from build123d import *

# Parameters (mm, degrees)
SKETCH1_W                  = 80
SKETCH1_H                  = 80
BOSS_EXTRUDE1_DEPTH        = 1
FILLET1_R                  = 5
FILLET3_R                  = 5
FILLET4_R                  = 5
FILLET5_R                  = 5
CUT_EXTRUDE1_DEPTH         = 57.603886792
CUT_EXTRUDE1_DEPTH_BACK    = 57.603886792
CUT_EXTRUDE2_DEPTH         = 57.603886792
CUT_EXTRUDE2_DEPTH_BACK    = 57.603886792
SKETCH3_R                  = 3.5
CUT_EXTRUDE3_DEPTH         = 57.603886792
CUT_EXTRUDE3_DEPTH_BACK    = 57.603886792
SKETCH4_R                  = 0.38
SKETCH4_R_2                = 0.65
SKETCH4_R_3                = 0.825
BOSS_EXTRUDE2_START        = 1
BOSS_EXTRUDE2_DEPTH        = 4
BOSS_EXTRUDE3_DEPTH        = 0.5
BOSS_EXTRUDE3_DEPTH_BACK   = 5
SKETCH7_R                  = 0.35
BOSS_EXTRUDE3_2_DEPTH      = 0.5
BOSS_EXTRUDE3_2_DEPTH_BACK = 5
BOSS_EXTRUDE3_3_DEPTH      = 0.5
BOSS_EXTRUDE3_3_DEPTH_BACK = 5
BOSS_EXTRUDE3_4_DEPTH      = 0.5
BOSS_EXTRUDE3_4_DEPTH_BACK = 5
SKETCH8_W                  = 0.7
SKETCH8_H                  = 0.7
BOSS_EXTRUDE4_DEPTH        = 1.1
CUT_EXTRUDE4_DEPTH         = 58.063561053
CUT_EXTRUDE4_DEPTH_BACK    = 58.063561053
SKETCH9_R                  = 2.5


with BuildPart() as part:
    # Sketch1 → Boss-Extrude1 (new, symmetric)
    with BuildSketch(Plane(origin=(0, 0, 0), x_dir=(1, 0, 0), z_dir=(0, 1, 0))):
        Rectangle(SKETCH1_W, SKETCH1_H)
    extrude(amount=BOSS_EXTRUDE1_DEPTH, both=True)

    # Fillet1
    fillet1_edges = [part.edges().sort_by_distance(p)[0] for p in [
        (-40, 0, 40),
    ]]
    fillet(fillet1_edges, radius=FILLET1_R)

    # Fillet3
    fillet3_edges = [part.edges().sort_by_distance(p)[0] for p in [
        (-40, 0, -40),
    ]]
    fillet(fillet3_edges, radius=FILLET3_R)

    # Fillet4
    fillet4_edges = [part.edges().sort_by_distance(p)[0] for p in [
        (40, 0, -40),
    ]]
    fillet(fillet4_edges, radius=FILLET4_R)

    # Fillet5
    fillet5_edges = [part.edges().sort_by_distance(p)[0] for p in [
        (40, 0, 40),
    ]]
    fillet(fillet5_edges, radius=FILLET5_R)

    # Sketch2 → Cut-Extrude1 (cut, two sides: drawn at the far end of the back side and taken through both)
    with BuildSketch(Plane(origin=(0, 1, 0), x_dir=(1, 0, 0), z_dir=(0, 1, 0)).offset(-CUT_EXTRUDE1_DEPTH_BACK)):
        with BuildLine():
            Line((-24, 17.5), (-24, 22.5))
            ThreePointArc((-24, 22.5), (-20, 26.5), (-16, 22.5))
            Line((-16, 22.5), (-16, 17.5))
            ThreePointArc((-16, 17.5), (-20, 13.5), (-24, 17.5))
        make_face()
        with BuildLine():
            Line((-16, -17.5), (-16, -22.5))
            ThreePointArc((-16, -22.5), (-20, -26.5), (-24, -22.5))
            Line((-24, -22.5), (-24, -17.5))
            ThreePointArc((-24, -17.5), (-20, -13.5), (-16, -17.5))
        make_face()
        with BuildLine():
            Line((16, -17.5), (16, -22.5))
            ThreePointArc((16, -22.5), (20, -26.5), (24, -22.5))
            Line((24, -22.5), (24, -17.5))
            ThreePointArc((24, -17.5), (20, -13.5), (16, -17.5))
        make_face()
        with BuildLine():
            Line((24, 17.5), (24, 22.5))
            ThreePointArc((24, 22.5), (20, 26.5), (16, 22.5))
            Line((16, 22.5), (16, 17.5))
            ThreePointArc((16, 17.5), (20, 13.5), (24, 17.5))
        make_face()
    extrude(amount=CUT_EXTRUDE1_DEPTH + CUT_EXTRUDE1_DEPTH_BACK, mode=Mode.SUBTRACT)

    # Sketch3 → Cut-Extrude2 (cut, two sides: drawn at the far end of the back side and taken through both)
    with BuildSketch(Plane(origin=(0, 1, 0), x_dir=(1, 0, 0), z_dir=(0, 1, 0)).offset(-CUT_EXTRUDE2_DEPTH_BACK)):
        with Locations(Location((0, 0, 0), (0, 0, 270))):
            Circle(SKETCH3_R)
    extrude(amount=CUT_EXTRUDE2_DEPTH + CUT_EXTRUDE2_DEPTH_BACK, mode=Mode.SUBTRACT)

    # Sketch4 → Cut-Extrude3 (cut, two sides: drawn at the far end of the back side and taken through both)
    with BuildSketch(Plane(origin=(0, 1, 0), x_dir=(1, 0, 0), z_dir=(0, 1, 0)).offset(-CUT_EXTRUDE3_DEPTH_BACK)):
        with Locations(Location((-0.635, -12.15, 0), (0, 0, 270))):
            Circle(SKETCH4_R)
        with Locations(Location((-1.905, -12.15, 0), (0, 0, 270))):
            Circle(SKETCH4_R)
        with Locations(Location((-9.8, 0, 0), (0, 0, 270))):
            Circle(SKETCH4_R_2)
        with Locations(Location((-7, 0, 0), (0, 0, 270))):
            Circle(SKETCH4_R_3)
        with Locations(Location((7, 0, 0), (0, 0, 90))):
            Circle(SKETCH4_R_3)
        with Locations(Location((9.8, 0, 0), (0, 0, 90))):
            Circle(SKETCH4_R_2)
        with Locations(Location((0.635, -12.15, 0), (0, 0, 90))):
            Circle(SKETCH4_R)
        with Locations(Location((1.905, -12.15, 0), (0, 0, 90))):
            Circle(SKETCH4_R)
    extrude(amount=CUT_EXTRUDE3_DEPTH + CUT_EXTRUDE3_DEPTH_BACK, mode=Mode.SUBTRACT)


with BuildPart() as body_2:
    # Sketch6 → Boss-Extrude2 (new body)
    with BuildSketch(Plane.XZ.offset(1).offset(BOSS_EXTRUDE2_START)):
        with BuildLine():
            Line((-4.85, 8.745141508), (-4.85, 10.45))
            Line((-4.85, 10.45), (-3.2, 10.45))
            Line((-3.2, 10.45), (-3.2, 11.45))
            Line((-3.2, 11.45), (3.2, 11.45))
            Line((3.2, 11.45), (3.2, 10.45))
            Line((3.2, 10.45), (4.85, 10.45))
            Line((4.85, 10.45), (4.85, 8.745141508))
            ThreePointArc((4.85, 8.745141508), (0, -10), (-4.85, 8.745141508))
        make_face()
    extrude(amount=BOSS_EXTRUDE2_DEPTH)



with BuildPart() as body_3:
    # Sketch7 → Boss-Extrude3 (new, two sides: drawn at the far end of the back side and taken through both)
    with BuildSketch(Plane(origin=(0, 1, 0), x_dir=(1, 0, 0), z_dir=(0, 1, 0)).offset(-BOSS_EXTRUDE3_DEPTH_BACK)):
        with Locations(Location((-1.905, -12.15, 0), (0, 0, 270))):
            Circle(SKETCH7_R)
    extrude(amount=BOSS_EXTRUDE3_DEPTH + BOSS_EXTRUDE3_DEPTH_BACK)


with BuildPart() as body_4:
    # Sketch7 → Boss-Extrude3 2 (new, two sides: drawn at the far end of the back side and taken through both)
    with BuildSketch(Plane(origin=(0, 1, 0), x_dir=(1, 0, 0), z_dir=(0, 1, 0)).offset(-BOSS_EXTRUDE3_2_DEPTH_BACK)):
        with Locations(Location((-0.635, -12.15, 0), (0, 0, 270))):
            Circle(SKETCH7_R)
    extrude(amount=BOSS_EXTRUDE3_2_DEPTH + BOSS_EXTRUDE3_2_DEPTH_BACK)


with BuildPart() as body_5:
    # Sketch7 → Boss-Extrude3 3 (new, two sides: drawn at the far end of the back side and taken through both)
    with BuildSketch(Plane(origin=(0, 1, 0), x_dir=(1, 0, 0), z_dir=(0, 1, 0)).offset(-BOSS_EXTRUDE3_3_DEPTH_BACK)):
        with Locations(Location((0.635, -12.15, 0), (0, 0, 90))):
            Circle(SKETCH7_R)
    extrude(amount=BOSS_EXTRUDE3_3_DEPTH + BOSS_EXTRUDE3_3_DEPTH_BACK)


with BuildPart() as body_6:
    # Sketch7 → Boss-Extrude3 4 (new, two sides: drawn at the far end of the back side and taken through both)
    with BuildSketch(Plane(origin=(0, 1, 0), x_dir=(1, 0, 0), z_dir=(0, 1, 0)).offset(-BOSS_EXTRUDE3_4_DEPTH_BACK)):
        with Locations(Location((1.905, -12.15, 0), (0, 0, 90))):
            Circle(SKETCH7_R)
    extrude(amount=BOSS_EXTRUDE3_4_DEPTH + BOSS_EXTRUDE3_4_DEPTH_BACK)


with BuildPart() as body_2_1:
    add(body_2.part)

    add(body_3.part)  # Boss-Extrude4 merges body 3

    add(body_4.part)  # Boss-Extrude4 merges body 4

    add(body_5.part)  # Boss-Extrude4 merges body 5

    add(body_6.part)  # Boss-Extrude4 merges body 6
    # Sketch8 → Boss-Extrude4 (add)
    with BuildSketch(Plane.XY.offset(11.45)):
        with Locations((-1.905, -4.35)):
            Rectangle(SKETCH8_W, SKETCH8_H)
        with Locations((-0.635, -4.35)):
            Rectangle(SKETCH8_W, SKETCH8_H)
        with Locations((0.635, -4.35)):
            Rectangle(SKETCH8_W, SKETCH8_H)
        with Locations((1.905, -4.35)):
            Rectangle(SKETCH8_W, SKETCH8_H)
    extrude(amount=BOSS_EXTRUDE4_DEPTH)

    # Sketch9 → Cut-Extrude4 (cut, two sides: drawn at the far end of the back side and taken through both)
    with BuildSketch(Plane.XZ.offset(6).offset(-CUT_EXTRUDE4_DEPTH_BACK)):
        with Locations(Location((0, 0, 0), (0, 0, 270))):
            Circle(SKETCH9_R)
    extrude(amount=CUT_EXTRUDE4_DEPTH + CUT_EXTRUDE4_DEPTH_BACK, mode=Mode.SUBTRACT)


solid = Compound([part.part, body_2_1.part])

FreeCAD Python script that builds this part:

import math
import FreeCAD as App
import Part
import Sketcher
from FreeCAD import Vector


def edges_at(feature, points):
    """Names of the edges that pass closest to the given points."""
    edges = feature.Shape.Edges
    near = lambda p: min(range(len(edges)), key=lambda i: edges[i].distToShape(Part.Vertex(*p))[0])
    return sorted({f"Edge{near(p) + 1}" for p in points})


def add_polygon(sketch, points):
    """Adds a closed chain of lines whose ends are joined by coincident constraints."""
    first, n = sketch.GeometryCount, len(points)
    for a, b in zip(points, points[1:] + points[:1]):
        sketch.addGeometry(Part.LineSegment(App.Vector(*a, 0), App.Vector(*b, 0)), False)
    for i in range(n):
        sketch.addConstraint(Sketcher.Constraint("Coincident", first + i, 2, first + (i + 1) % n, 1))

doc = App.newDocument("Part")
body = doc.addObject("PartDesign::Body", "Body")

# Sketch on XZ plane
sketch1 = doc.addObject("Sketcher::SketchObject", "Sketch")
body.addObject(sketch1)
sketch1.AttachmentSupport = (doc.XZ_Plane, [""])
sketch1.MapMode = "FlatFace"
add_polygon(sketch1, [(-40, -40), (-40, 40), (40, 40), (40, -40)])  # lines 0-3
sketch1.addConstraint([
    Sketcher.Constraint("Vertical", 0),
    Sketcher.Constraint("Horizontal", 1),
    Sketcher.Constraint("Vertical", 2),
    Sketcher.Constraint("Horizontal", 3),
    Sketcher.Constraint("Symmetric", 0, 2, 2, 2, -1, 1),
    Sketcher.Constraint("Equal", 3, 0),
    Sketcher.Constraint("DistanceX", 1, 1, 1, 2, 80.0),
])
pad1 = doc.addObject("PartDesign::Pad", "Pad")
body.addObject(pad1)
pad1.Profile = sketch1
pad1.Length = 2
pad1.Midplane = True
doc.recompute()

fillet = doc.addObject("PartDesign::Fillet", "Fillet")
body.addObject(fillet)
fillet.Base = (pad1, edges_at(pad1, [(-40, 0, 40)]))
fillet.Radius = 5
doc.recompute()

fillet2 = doc.addObject("PartDesign::Fillet", "Fillet001")
body.addObject(fillet2)
fillet2.Base = (fillet, edges_at(fillet, [(-40, 0, -40)]))
fillet2.Radius = 5
doc.recompute()

fillet3 = doc.addObject("PartDesign::Fillet", "Fillet002")
body.addObject(fillet3)
fillet3.Base = (fillet2, edges_at(fillet2, [(40, 0, -40)]))
fillet3.Radius = 5
doc.recompute()

fillet4 = doc.addObject("PartDesign::Fillet", "Fillet003")
body.addObject(fillet4)
fillet4.Base = (fillet3, edges_at(fillet3, [(40, 0, 40)]))
fillet4.Radius = 5

# Sketch on XZ plane
sketch2 = doc.addObject("Sketcher::SketchObject", "Sketch001")
body.addObject(sketch2)
sketch2.AttachmentSupport = (doc.XZ_Plane, [""])
sketch2.MapMode = "FlatFace"
sketch2.AttachmentOffset = App.Placement(Vector(0, 0, -1), App.Rotation())
sketch2.addGeometry([
    Part.LineSegment(Vector(-24, -22.5, 0), Vector(-24, -17.5, 0)),  # 0
    Part.ArcOfCircle(Part.Circle(Vector(-20, -17.5, 0), Vector(0, 0, 1), 4), math.radians(0), math.radians(180)),  # 1
    Part.LineSegment(Vector(-16, -17.5, 0), Vector(-16, -22.5, 0)),  # 2
    Part.ArcOfCircle(Part.Circle(Vector(-20, -22.5, 0), Vector(0, 0, 1), 4), math.radians(180), math.radians(360)),  # 3
    Part.LineSegment(Vector(-16, 22.5, 0), Vector(-16, 17.5, 0)),  # 4
    Part.ArcOfCircle(Part.Circle(Vector(-20, 17.5, 0), Vector(0, 0, 1), 4), math.radians(180), math.radians(360)),  # 5
    Part.LineSegment(Vector(-24, 17.5, 0), Vector(-24, 22.5, 0)),  # 6
    Part.ArcOfCircle(Part.Circle(Vector(-20, 22.5, 0), Vector(0, 0, 1), 4), math.radians(0), math.radians(180)),  # 7
    Part.LineSegment(Vector(16, 17.5, 0), Vector(16, 22.5, 0)),  # 8
    Part.ArcOfCircle(Part.Circle(Vector(20, 22.5, 0), Vector(0, 0, 1), 4), math.radians(0), math.radians(180)),  # 9
    Part.LineSegment(Vector(24, 22.5, 0), Vector(24, 17.5, 0)),  # 10
    Part.ArcOfCircle(Part.Circle(Vector(20, 17.5, 0), Vector(0, 0, 1), 4), math.radians(180), math.radians(360)),  # 11
    Part.LineSegment(Vector(24, -17.5, 0), Vector(24, -22.5, 0)),  # 12
    Part.ArcOfCircle(Part.Circle(Vector(20, -22.5, 0), Vector(0, 0, 1), 4), math.radians(180), math.radians(360)),  # 13
    Part.LineSegment(Vector(16, -22.5, 0), Vector(16, -17.5, 0)),  # 14
    Part.ArcOfCircle(Part.Circle(Vector(20, -17.5, 0), Vector(0, 0, 1), 4), math.radians(0), math.radians(180)),  # 15
], False)
sketch2.addConstraint([
    Sketcher.Constraint("Tangent", 0, 2, 1, 2),
    Sketcher.Constraint("Tangent", 1, 1, 2, 1),
    Sketcher.Constraint("Tangent", 2, 2, 3, 2),
    Sketcher.Constraint("Tangent", 3, 1, 0, 1),
    Sketcher.Constraint("Tangent", 4, 2, 5, 2),
    Sketcher.Constraint("Tangent", 5, 1, 6, 1),
    Sketcher.Constraint("Tangent", 6, 2, 7, 2),
    Sketcher.Constraint("Tangent", 7, 1, 4, 1),
    Sketcher.Constraint("Tangent", 8, 2, 9, 2),
    Sketcher.Constraint("Tangent", 9, 1, 10, 1),
    Sketcher.Constraint("Tangent", 10, 2, 11, 2),
    Sketcher.Constraint("Tangent", 11, 1, 8, 1),
    Sketcher.Constraint("Tangent", 12, 2, 13, 2),
    Sketcher.Constraint("Tangent", 13, 1, 14, 1),
    Sketcher.Constraint("Tangent", 14, 2, 15, 2),
    Sketcher.Constraint("Tangent", 15, 1, 12, 1),
    Sketcher.Constraint("Vertical", 0),
    Sketcher.Constraint("Vertical", 2),
    Sketcher.Constraint("Vertical", 4),
    Sketcher.Constraint("Vertical", 6),
    Sketcher.Constraint("Vertical", 8),
    Sketcher.Constraint("Vertical", 10),
    Sketcher.Constraint("Vertical", 12),
    Sketcher.Constraint("Vertical", 14),
    Sketcher.Constraint("Equal", 3, 5),
    Sketcher.Constraint("Equal", 7, 9),
    Sketcher.Constraint("Equal", 11, 13),
    Sketcher.Constraint("Symmetric", 3, 3, 9, 3, -1, 1),
    Sketcher.Constraint("Symmetric", 7, 3, 13, 3, -1, 1),
    Sketcher.Constraint("Symmetric", 7, 3, 9, 3, -2),
    Sketcher.Constraint("Horizontal", 5, 3, 11, 3),
    Sketcher.Constraint("Horizontal", 1, 3, 15, 3),
    Sketcher.Constraint("Equal", 2, 4),
    Sketcher.Constraint("Radius", 1, 4.0),
    Sketcher.Constraint("DistanceY", 0, 1, 0, 2, 5.0),
    Sketcher.Constraint("DistanceX", 1, 3, -1, 1, 20.0),
    Sketcher.Constraint("DistanceY", 1, 3, 5, 3, 35.0),
])
pocket1 = doc.addObject("PartDesign::Pocket", "Pocket")
body.addObject(pocket1)
pocket1.Profile = sketch2
pocket1.Type = "ThroughAll"
pocket1.Midplane = True

# Sketch on XZ plane
sketch3 = doc.addObject("Sketcher::SketchObject", "Sketch002")
body.addObject(sketch3)
sketch3.AttachmentSupport = (doc.XZ_Plane, [""])
sketch3.MapMode = "FlatFace"
sketch3.AttachmentOffset = App.Placement(Vector(0, 0, -1), App.Rotation())
sketch3.addGeometry(Part.Circle(Vector(0, 0, 0), Vector(0, 0, 1), 3.5), False)
sketch3.addConstraint([
    Sketcher.Constraint("Coincident", 0, 3, -1, 1),
    Sketcher.Constraint("Diameter", 0, 7.0),
])
pocket2 = doc.addObject("PartDesign::Pocket", "Pocket001")
body.addObject(pocket2)
pocket2.Profile = sketch3
pocket2.Type = "ThroughAll"
pocket2.Midplane = True

# Sketch on XZ plane
sketch4 = doc.addObject("Sketcher::SketchObject", "Sketch003")
body.addObject(sketch4)
sketch4.AttachmentSupport = (doc.XZ_Plane, [""])
sketch4.MapMode = "FlatFace"
sketch4.AttachmentOffset = App.Placement(Vector(0, 0, -1), App.Rotation())
sketch4.addGeometry([
    Part.Circle(Vector(-0.64, 12.15, 0), Vector(0, 0, 1), 0.38),  # 0
    Part.Circle(Vector(-1.91, 12.15, 0), Vector(0, 0, 1), 0.38),  # 1
    Part.Circle(Vector(-9.8, 0, 0), Vector(0, 0, 1), 0.65),  # 2
    Part.Circle(Vector(-7, 0, 0), Vector(0, 0, 1), 0.82),  # 3
    Part.Circle(Vector(7, 0, 0), Vector(0, 0, 1), 0.82),  # 4
    Part.Circle(Vector(9.8, 0, 0), Vector(0, 0, 1), 0.65),  # 5
    Part.Circle(Vector(0.64, 12.15, 0), Vector(0, 0, 1), 0.38),  # 6
    Part.Circle(Vector(1.91, 12.15, 0), Vector(0, 0, 1), 0.38),  # 7
], False)
sketch4.addConstraint([
    Sketcher.Constraint("Equal", 0, 1),
    Sketcher.Constraint("Equal", 3, 4),
    Sketcher.Constraint("Equal", 2, 5),
    Sketcher.Constraint("Equal", 1, 6),
    Sketcher.Constraint("Equal", 6, 7),
    Sketcher.Constraint("Symmetric", 3, 3, 4, 3, -1, 1),
    Sketcher.Constraint("Symmetric", 2, 3, 5, 3, -1, 1),
    Sketcher.Constraint("Symmetric", 0, 3, 6, 3, -2),
    Sketcher.Constraint("Symmetric", 1, 3, 7, 3, -2),
    Sketcher.Constraint("PointOnObject", 2, 3, -1),
    Sketcher.Constraint("PointOnObject", 3, 3, -1),
    Sketcher.Constraint("Horizontal", 0, 3, 1, 3),
    Sketcher.Constraint("Diameter", 2, 1.3),
    Sketcher.Constraint("Diameter", 0, 0.76),
    Sketcher.Constraint("Diameter", 3, 1.65),
    Sketcher.Constraint("DistanceX", 3, 3, -1, 1, 7.0),
    Sketcher.Constraint("DistanceX", 2, 3, -1, 1, 9.8),
    Sketcher.Constraint("DistanceY", -1, 1, 0, 3, 12.15),
    Sketcher.Constraint("DistanceX", 1, 3, 0, 3, 1.27),
    Sketcher.Constraint("DistanceX", 0, 3, 6, 3, 1.27),
])
pocket3 = doc.addObject("PartDesign::Pocket", "Pocket002")
body.addObject(pocket3)
pocket3.Profile = sketch4
pocket3.Type = "ThroughAll"
pocket3.Midplane = True
body2 = doc.addObject("PartDesign::Body", "Body001")

# Sketch on XZ plane
sketch5 = doc.addObject("Sketcher::SketchObject", "Sketch004")
body2.addObject(sketch5)
sketch5.AttachmentSupport = (doc.getObject("XZ_Plane001"), [""])
sketch5.MapMode = "FlatFace"
sketch5.AttachmentOffset = App.Placement(Vector(0, 0, 2), App.Rotation())
sketch5.addGeometry([
    Part.LineSegment(Vector(-4.8, 10.4, 0), Vector(-4.8, 8.7, 0)),  # 0
    Part.ArcOfCircle(Part.Circle(Vector(0, 0, 0), Vector(0, 0, 1), 10), math.radians(119), math.radians(421)),  # 1
    Part.LineSegment(Vector(4.8, 8.7, 0), Vector(4.8, 10.4, 0)),  # 2
    Part.LineSegment(Vector(4.8, 10.4, 0), Vector(3.2, 10.4, 0)),  # 3
    Part.LineSegment(Vector(3.2, 10.4, 0), Vector(3.2, 11.4, 0)),  # 4
    Part.LineSegment(Vector(3.2, 11.4, 0), Vector(-3.2, 11.4, 0)),  # 5
    Part.LineSegment(Vector(-3.2, 11.4, 0), Vector(-3.2, 10.4, 0)),  # 6
    Part.LineSegment(Vector(-3.2, 10.4, 0), Vector(-4.8, 10.4, 0)),  # 7
], False)
sketch5.addConstraint([
    Sketcher.Constraint("Coincident", 0, 2, 1, 1),
    Sketcher.Constraint("Coincident", 1, 2, 2, 1),
    Sketcher.Constraint("Coincident", 2, 2, 3, 1),
    Sketcher.Constraint("Coincident", 3, 2, 4, 1),
    Sketcher.Constraint("Coincident", 4, 2, 5, 1),
    Sketcher.Constraint("Coincident", 5, 2, 6, 1),
    Sketcher.Constraint("Coincident", 6, 2, 7, 1),
    Sketcher.Constraint("Coincident", 7, 2, 0, 1),
    Sketcher.Constraint("Vertical", 0),
    Sketcher.Constraint("Vertical", 2),
    Sketcher.Constraint("Horizontal", 3),
    Sketcher.Constraint("Vertical", 4),
    Sketcher.Constraint("Horizontal", 5),
    Sketcher.Constraint("Vertical", 6),
    Sketcher.Constraint("Horizontal", 7),
    Sketcher.Constraint("Coincident", 1, 3, -1, 1),
    Sketcher.Constraint("Symmetric", 3, 2, 6, 2, -2),
    Sketcher.Constraint("Horizontal", 0, 2, 1, 2),
    Sketcher.Constraint("Radius", 1, 10.0),
    Sketcher.Constraint("DistanceY", 4, 1, 4, 2, 1.0),
    Sketcher.Constraint("DistanceX", 5, 2, 5, 1, 6.4),
    Sketcher.Constraint("DistanceX", 3, 2, 3, 1, 1.65),
    Sketcher.Constraint("DistanceY", -1, 1, 2, 2, 10.45),
])
pad2 = doc.addObject("PartDesign::Pad", "Pad001")
body2.addObject(pad2)
pad2.Profile = sketch5
pad2.Length = 4
body3 = doc.addObject("PartDesign::Body", "Body002")

# Sketch on XZ plane
sketch6 = doc.addObject("Sketcher::SketchObject", "Sketch005")
body3.addObject(sketch6)
sketch6.AttachmentSupport = (doc.getObject("XZ_Plane002"), [""])
sketch6.MapMode = "FlatFace"
sketch6.AttachmentOffset = App.Placement(Vector(0, 0, -1), App.Rotation())
sketch6.addGeometry(Part.Circle(Vector(-1.91, 12.15, 0), Vector(0, 0, 1), 0.35), False)
sketch6.addConstraint([
    Sketcher.Constraint("Diameter", 0, 0.7),
    Sketcher.Constraint("DistanceY", -1, 1, 0, 3, 12.15),
    Sketcher.Constraint("DistanceX", 0, 3, -1, 1, 1.905),
])
pad3 = doc.addObject("PartDesign::Pad", "Pad002")
body3.addObject(pad3)
pad3.Profile = sketch6
pad3.Type = "TwoLengths"
pad3.Length = 0.5
pad3.Length2 = 5
pad3.Reversed = True
body4 = doc.addObject("PartDesign::Body", "Body003")

# Sketch on XZ plane
sketch7 = doc.addObject("Sketcher::SketchObject", "Sketch006")
body4.addObject(sketch7)
sketch7.AttachmentSupport = (doc.getObject("XZ_Plane003"), [""])
sketch7.MapMode = "FlatFace"
sketch7.AttachmentOffset = App.Placement(Vector(0, 0, -1), App.Rotation())
sketch7.addGeometry(Part.Circle(Vector(-0.64, 12.15, 0), Vector(0, 0, 1), 0.35), False)
sketch7.addConstraint([
    Sketcher.Constraint("Diameter", 0, 0.7),
    Sketcher.Constraint("DistanceY", -1, 1, 0, 3, 12.15),
    Sketcher.Constraint("DistanceX", 0, 3, -1, 1, 0.635),
])
pad4 = doc.addObject("PartDesign::Pad", "Pad003")
body4.addObject(pad4)
pad4.Profile = sketch7
pad4.Type = "TwoLengths"
pad4.Length = 0.5
pad4.Length2 = 5
pad4.Reversed = True
body5 = doc.addObject("PartDesign::Body", "Body004")

# Sketch on XZ plane
sketch8 = doc.addObject("Sketcher::SketchObject", "Sketch007")
body5.addObject(sketch8)
sketch8.AttachmentSupport = (doc.getObject("XZ_Plane004"), [""])
sketch8.MapMode = "FlatFace"
sketch8.AttachmentOffset = App.Placement(Vector(0, 0, -1), App.Rotation())
sketch8.addGeometry(Part.Circle(Vector(0.64, 12.15, 0), Vector(0, 0, 1), 0.35), False)
sketch8.addConstraint([
    Sketcher.Constraint("Diameter", 0, 0.7),
    Sketcher.Constraint("DistanceY", -1, 1, 0, 3, 12.15),
    Sketcher.Constraint("DistanceX", -1, 1, 0, 3, 0.635),
])
pad5 = doc.addObject("PartDesign::Pad", "Pad004")
body5.addObject(pad5)
pad5.Profile = sketch8
pad5.Type = "TwoLengths"
pad5.Length = 0.5
pad5.Length2 = 5
pad5.Reversed = True
body6 = doc.addObject("PartDesign::Body", "Body005")

# Sketch on XZ plane
sketch9 = doc.addObject("Sketcher::SketchObject", "Sketch008")
body6.addObject(sketch9)
sketch9.AttachmentSupport = (doc.getObject("XZ_Plane005"), [""])
sketch9.MapMode = "FlatFace"
sketch9.AttachmentOffset = App.Placement(Vector(0, 0, -1), App.Rotation())
sketch9.addGeometry(Part.Circle(Vector(1.91, 12.15, 0), Vector(0, 0, 1), 0.35), False)
sketch9.addConstraint([
    Sketcher.Constraint("Diameter", 0, 0.7),
    Sketcher.Constraint("DistanceY", -1, 1, 0, 3, 12.15),
    Sketcher.Constraint("DistanceX", -1, 1, 0, 3, 1.905),
])
pad6 = doc.addObject("PartDesign::Pad", "Pad005")
body6.addObject(pad6)
pad6.Profile = sketch9
pad6.Type = "TwoLengths"
pad6.Length = 0.5
pad6.Length2 = 5
pad6.Reversed = True
body2.AllowCompound = True
doc.recompute()

boolean = doc.addObject("PartDesign::Boolean", "Boolean")
body2.addObject(boolean)
boolean.Type = "Fuse"
boolean.addObjects([body3])
doc.recompute()

boolean2 = doc.addObject("PartDesign::Boolean", "Boolean001")
body2.addObject(boolean2)
boolean2.Type = "Fuse"
boolean2.addObjects([body4])
doc.recompute()

boolean3 = doc.addObject("PartDesign::Boolean", "Boolean002")
body2.addObject(boolean3)
boolean3.Type = "Fuse"
boolean3.addObjects([body5])
doc.recompute()

boolean4 = doc.addObject("PartDesign::Boolean", "Boolean003")
body2.addObject(boolean4)
boolean4.Type = "Fuse"
boolean4.addObjects([body6])

# Sketch on XY plane
sketch10 = doc.addObject("Sketcher::SketchObject", "Sketch009")
body2.addObject(sketch10)
sketch10.AttachmentSupport = (doc.getObject("XY_Plane001"), [""])
sketch10.MapMode = "FlatFace"
sketch10.AttachmentOffset = App.Placement(Vector(0, 0, 11.45), App.Rotation())
add_polygon(sketch10, [(-2.3, -4), (-2.3, -4.7), (-1.6, -4.7), (-1.6, -4)])  # lines 0-3
add_polygon(sketch10, [(-1, -4), (-1, -4.7), (-0.3, -4.7), (-0.3, -4)])  # lines 4-7
add_polygon(sketch10, [(0.3, -4), (0.3, -4.7), (1, -4.7), (1, -4)])  # lines 8-11
add_polygon(sketch10, [(1.6, -4), (1.6, -4.7), (2.3, -4.7), (2.3, -4)])  # lines 12-15
sketch10.addConstraint([
    Sketcher.Constraint("Vertical", 0),
    Sketcher.Constraint("Horizontal", 1),
    Sketcher.Constraint("Vertical", 2),
    Sketcher.Constraint("Horizontal", 3),
    Sketcher.Constraint("Vertical", 4),
    Sketcher.Constraint("Horizontal", 5),
    Sketcher.Constraint("Vertical", 6),
    Sketcher.Constraint("Horizontal", 7),
    Sketcher.Constraint("Vertical", 8),
    Sketcher.Constraint("Horizontal", 9),
    Sketcher.Constraint("Vertical", 10),
    Sketcher.Constraint("Horizontal", 11),
    Sketcher.Constraint("Vertical", 12),
    Sketcher.Constraint("Horizontal", 13),
    Sketcher.Constraint("Vertical", 14),
    Sketcher.Constraint("Horizontal", 15),
    Sketcher.Constraint("Symmetric", 5, 2, 8, 2, -2),
    Sketcher.Constraint("Symmetric", 7, 2, 10, 2, -2),
    Sketcher.Constraint("Symmetric", 1, 2, 12, 2, -2),
    Sketcher.Constraint("Symmetric", 3, 2, 14, 2, -2),
    Sketcher.Constraint("Horizontal", 1, 2, 4, 2),
    Sketcher.Constraint("Horizontal", 3, 2, 6, 2),
    Sketcher.Constraint("Equal", 3, 5),
    Sketcher.Constraint("Equal", 15, 0),
    Sketcher.Constraint("DistanceX", 1, 1, 1, 2, 0.7),
    Sketcher.Constraint("DistanceY", 2, 2, -1, 1, 4.0),
    Sketcher.Constraint("DistanceX", 1, 2, 4, 2, 0.57),
    Sketcher.Constraint("DistanceX", 5, 2, 8, 2, 0.57),
])
pad7 = doc.addObject("PartDesign::Pad", "Pad006")
body2.addObject(pad7)
pad7.Profile = sketch10
pad7.Length = 1.1

# Sketch on XZ plane
sketch11 = doc.addObject("Sketcher::SketchObject", "Sketch010")
body2.addObject(sketch11)
sketch11.AttachmentSupport = (doc.getObject("XZ_Plane001"), [""])
sketch11.MapMode = "FlatFace"
sketch11.AttachmentOffset = App.Placement(Vector(0, 0, 6), App.Rotation())
sketch11.addGeometry(Part.Circle(Vector(0, 0, 0), Vector(0, 0, 1), 2.5), False)
sketch11.addConstraint([
    Sketcher.Constraint("Coincident", 0, 3, -1, 1),
    Sketcher.Constraint("Diameter", 0, 5.0),
])
pocket4 = doc.addObject("PartDesign::Pocket", "Pocket003")
body2.addObject(pocket4)
pocket4.Profile = sketch11
pocket4.Type = "ThroughAll"
pocket4.Midplane = True

doc.recompute()
